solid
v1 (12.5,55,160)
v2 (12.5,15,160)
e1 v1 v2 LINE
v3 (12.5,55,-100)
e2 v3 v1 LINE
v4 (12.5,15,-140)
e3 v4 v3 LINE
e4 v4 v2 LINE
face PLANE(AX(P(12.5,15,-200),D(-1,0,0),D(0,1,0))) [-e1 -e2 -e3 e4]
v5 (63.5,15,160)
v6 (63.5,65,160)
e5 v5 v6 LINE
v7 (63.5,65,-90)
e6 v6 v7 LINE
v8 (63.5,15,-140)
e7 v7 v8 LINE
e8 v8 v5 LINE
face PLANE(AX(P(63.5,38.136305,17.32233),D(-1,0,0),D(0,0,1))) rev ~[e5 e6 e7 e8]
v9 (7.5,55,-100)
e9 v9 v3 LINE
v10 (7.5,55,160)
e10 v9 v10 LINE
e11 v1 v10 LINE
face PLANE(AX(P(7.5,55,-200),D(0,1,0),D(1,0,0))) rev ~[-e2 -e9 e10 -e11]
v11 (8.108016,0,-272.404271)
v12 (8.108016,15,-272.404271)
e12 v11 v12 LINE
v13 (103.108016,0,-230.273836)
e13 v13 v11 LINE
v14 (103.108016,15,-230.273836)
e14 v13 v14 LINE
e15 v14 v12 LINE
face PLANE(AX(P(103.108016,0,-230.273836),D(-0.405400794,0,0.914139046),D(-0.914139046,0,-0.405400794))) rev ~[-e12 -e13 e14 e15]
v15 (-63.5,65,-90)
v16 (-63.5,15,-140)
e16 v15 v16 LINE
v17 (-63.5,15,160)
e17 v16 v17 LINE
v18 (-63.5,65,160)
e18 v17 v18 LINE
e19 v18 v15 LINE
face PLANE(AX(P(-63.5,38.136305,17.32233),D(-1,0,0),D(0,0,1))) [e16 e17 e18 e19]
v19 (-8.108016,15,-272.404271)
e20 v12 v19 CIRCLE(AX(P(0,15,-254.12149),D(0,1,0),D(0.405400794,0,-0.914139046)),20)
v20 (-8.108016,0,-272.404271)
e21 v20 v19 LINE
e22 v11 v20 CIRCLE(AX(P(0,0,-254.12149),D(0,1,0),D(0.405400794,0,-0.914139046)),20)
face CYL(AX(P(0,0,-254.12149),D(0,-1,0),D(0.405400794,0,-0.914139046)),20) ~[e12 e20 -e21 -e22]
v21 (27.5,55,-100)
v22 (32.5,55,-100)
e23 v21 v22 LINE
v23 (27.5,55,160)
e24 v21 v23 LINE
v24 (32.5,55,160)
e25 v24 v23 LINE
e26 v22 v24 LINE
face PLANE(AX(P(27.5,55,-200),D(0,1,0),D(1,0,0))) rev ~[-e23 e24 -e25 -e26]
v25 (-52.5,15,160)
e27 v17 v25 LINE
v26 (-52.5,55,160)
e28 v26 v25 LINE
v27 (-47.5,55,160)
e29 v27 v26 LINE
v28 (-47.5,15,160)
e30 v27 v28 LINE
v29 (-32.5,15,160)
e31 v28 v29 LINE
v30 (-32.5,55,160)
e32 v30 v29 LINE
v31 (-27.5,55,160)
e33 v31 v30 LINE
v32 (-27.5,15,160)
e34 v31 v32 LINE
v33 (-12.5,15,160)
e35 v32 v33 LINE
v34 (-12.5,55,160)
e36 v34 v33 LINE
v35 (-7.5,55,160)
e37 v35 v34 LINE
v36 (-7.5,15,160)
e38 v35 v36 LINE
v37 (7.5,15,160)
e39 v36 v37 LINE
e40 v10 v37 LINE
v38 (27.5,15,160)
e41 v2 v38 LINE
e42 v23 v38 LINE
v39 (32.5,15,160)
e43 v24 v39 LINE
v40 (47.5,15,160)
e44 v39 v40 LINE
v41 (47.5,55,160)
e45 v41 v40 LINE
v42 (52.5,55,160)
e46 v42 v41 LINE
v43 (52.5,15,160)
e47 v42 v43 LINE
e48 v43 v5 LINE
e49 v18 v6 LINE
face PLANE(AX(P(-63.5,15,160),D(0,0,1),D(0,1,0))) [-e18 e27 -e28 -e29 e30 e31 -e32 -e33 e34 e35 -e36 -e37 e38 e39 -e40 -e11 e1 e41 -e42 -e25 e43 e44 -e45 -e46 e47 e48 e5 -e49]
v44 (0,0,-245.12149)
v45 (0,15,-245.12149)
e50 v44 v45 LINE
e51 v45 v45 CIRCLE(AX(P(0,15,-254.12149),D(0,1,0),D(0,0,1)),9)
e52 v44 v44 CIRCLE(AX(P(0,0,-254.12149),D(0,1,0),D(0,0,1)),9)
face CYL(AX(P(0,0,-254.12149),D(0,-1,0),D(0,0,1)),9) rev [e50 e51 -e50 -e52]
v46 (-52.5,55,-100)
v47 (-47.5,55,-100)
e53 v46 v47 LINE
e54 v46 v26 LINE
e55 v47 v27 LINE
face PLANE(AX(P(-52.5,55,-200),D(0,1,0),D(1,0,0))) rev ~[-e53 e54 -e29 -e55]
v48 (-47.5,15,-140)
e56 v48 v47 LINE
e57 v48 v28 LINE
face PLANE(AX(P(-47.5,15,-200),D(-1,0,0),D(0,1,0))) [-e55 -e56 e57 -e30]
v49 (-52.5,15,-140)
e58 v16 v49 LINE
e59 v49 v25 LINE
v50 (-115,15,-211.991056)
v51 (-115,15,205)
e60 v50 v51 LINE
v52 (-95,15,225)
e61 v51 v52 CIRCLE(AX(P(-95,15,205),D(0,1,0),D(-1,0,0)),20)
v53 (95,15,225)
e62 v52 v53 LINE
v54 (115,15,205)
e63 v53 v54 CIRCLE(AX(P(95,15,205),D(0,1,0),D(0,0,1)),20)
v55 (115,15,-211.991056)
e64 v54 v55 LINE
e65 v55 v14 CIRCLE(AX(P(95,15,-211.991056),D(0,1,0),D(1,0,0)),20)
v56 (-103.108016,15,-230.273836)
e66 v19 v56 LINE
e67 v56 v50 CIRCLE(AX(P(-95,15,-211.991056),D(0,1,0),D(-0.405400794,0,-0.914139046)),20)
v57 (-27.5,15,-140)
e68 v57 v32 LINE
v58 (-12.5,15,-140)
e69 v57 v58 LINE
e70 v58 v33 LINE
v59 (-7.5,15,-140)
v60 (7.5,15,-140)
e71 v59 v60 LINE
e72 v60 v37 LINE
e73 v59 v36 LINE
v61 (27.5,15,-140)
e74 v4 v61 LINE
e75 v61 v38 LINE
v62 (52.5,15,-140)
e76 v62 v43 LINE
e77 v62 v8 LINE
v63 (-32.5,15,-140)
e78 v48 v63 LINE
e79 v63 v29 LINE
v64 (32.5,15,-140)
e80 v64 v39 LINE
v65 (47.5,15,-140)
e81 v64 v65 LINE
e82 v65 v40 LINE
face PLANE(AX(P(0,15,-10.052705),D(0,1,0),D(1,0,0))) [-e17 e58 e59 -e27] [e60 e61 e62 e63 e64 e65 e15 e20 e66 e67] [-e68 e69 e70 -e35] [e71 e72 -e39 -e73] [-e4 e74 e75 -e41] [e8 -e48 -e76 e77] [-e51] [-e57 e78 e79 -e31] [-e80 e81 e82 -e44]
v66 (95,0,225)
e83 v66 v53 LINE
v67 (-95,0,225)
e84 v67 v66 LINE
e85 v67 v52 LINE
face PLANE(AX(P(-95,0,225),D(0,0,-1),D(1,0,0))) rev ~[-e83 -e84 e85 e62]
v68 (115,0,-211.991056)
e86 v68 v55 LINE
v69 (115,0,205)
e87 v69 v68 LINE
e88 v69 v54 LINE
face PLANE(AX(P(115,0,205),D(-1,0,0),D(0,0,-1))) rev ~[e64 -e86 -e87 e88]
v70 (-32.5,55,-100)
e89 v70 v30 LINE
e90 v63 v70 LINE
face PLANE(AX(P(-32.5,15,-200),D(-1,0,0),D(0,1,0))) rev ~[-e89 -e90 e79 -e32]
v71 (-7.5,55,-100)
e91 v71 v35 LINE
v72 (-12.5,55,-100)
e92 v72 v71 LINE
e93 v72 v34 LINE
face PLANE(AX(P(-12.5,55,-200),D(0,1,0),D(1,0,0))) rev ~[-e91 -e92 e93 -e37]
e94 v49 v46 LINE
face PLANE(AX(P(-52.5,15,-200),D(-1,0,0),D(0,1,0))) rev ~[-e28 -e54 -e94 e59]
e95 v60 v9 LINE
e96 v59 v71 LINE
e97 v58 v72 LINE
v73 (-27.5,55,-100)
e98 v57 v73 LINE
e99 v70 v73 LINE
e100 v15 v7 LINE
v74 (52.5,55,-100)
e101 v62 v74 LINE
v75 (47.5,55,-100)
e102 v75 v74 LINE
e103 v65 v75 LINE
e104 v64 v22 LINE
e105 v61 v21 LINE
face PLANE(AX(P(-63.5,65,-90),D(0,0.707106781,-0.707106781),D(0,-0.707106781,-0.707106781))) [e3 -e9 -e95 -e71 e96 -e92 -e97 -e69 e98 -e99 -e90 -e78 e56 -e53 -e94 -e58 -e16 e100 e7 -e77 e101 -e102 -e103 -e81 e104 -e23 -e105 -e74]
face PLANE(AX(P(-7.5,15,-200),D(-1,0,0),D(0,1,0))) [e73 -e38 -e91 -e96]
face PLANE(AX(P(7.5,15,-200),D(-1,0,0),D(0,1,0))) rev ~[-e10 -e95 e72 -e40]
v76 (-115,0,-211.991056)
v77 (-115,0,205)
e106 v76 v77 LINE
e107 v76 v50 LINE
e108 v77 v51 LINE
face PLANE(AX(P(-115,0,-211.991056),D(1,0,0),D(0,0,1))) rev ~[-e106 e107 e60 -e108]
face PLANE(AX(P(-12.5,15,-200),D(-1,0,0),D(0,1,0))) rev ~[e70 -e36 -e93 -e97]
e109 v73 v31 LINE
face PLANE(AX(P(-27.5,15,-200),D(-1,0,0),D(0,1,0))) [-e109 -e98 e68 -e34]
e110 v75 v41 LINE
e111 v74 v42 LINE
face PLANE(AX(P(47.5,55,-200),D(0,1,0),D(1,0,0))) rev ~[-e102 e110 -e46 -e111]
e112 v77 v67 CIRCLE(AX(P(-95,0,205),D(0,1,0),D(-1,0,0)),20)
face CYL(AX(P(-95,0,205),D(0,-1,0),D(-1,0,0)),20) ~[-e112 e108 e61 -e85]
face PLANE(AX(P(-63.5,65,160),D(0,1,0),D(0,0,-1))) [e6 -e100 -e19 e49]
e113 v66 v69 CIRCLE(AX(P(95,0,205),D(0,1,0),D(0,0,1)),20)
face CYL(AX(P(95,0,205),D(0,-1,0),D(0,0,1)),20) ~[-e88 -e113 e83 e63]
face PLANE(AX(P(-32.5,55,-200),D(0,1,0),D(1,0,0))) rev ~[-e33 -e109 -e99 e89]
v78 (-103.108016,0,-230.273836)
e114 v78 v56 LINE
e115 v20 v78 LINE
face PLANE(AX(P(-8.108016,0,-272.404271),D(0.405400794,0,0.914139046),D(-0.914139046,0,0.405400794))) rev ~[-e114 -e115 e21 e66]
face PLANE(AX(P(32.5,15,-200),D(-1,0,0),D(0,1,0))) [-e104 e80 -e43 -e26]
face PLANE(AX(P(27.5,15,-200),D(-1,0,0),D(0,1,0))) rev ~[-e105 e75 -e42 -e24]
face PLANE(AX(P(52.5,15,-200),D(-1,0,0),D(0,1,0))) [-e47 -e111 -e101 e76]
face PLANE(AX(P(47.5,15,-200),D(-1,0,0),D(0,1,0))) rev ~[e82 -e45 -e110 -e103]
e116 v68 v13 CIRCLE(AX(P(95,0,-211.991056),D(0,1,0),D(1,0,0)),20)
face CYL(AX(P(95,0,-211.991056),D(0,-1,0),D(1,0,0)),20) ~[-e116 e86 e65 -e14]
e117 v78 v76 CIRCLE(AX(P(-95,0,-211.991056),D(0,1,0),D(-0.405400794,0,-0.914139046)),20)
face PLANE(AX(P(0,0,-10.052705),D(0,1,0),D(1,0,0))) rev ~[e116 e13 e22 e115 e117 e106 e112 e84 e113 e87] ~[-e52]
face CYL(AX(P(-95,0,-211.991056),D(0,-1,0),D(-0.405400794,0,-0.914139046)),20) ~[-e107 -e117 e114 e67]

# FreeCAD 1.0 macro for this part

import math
import FreeCAD as App
import Part
import Sketcher

V = App.Vector
Q = App.Units.Quantity

doc = App.newDocument("Part")
body = doc.addObject("PartDesign::Body", "Body")

# Sketch on XZ plane
sketch1 = body.newObject("Sketcher::SketchObject", "Sketch")
sketch1.AttachmentSupport = (doc.getObject("XZ_Plane"), [""])
sketch1.MapMode = "FlatFace"
sketch1.addGeometry(Part.LineSegment(V(-115, -212, 0), V(-115, 205, 0)), False)
sketch1.addGeometry(Part.ArcOfCircle(Part.Circle(V(-95, 205, 0), V(0, 0, 1), 20), math.radians(90), math.radians(180)), False)
sketch1.addGeometry(Part.LineSegment(V(-95, 225, 0), V(95, 225, 0)), False)
sketch1.addGeometry(Part.ArcOfCircle(Part.Circle(V(95, 205, 0), V(0, 0, 1), 20), math.radians(0), math.radians(90)), False)
sketch1.addGeometry(Part.LineSegment(V(115, 205, 0), V(115, -212, 0)), False)
sketch1.addGeometry(Part.ArcOfCircle(Part.Circle(V(95, -212, 0), V(0, 0, 1), 20), math.radians(-66), math.radians(0)), False)
sketch1.addGeometry(Part.LineSegment(V(103, -230, 0), V(8, -272, 0)), False)
sketch1.addGeometry(Part.ArcOfCircle(Part.Circle(V(0, -254, 0), V(0, 0, 1), 20), math.radians(-114), math.radians(-66)), False)
sketch1.addGeometry(Part.LineSegment(V(-8, -272, 0), V(-103, -230, 0)), False)
sketch1.addGeometry(Part.ArcOfCircle(Part.Circle(V(-95, -212, 0), V(0, 0, 1), 20), math.radians(180), math.radians(246)), False)
sketch1.addGeometry(Part.Circle(V(0, -254, 0), V(0, 0, 1), 9), False)
sketch1.addConstraint(Sketcher.Constraint("Tangent", 0, 2, 1, 2))
sketch1.addConstraint(Sketcher.Constraint("Tangent", 1, 1, 2, 1))
sketch1.addConstraint(Sketcher.Constraint("Tangent", 2, 2, 3, 2))
sketch1.addConstraint(Sketcher.Constraint("Tangent", 3, 1, 4, 1))
sketch1.addConstraint(Sketcher.Constraint("Tangent", 4, 2, 5, 2))
sketch1.addConstraint(Sketcher.Constraint("Tangent", 5, 1, 6, 1))
sketch1.addConstraint(Sketcher.Constraint("Tangent", 6, 2, 7, 2))
sketch1.addConstraint(Sketcher.Constraint("Tangent", 7, 1, 8, 1))
sketch1.addConstraint(Sketcher.Constraint("Tangent", 8, 2, 9, 2))
sketch1.addConstraint(Sketcher.Constraint("Tangent", 9, 1, 0, 1))
sketch1.addConstraint(Sketcher.Constraint("Vertical", 0))
sketch1.addConstraint(Sketcher.Constraint("Horizontal", 2))
sketch1.addConstraint(Sketcher.Constraint("Vertical", 4))
sketch1.addConstraint(Sketcher.Constraint("Coincident", 10, 3, 7, 3))
sketch1.addConstraint(Sketcher.Constraint("Equal", 1, 3))
sketch1.addConstraint(Sketcher.Constraint("Equal", 3, 5))
sketch1.addConstraint(Sketcher.Constraint("Equal", 5, 7))
sketch1.addConstraint(Sketcher.Constraint("Equal", 7, 9))
sketch1.addConstraint(Sketcher.Constraint("Symmetric", 5, 3, 9, 3, -2))
sketch1.addConstraint(Sketcher.Constraint("PointOnObject", 7, 3, -2))
sketch1.addConstraint(Sketcher.Constraint("Diameter", 10, Q("18 mm")))
sketch1.addConstraint(Sketcher.Constraint("Radius", 1, Q("20 mm")))
sketch1.addConstraint(Sketcher.Constraint("DistanceX", 2, 1, 2, 2, Q("190 mm")))
sketch1.addConstraint(Sketcher.Constraint("DistanceY", -1, 1, 1, 3, Q("205 mm")))
sketch1.addConstraint(Sketcher.Constraint("Distance", 6, Q("103.922921 mm")))
sketch1.addConstraint(Sketcher.Constraint("DistanceY", 0, 1, 0, 2, Q("416.991056 mm")))
pad1 = body.newObject("PartDesign::Pad", "Pad")
pad1.Profile = sketch1
pad1.Length = 15
pad1.Reversed = True

# Sketch on YZ plane
sketch2 = body.newObject("Sketcher::SketchObject", "Sketch001")
sketch2.AttachmentSupport = (doc.getObject("YZ_Plane"), [""])
sketch2.MapMode = "FlatFace"
sketch2.addGeometry(Part.LineSegment(V(65, 160, 0), V(15, 160, 0)), False)
sketch2.addGeometry(Part.LineSegment(V(15, 160, 0), V(15, -140, 0)), False)
sketch2.addGeometry(Part.LineSegment(V(15, -140, 0), V(65, -90, 0)), False)
sketch2.addGeometry(Part.LineSegment(V(65, -90, 0), V(65, 160, 0)), False)
sketch2.addConstraint(Sketcher.Constraint("Coincident", 0, 2, 1, 1))
sketch2.addConstraint(Sketcher.Constraint("Coincident", 1, 2, 2, 1))
sketch2.addConstraint(Sketcher.Constraint("Coincident", 2, 2, 3, 1))
sketch2.addConstraint(Sketcher.Constraint("Coincident", 3, 2, 0, 1))
sketch2.addConstraint(Sketcher.Constraint("Horizontal", 0))
sketch2.addConstraint(Sketcher.Constraint("Vertical", 1))
sketch2.addConstraint(Sketcher.Constraint("Vertical", 3))
sketch2.addConstraint(Sketcher.Constraint("DistanceX", 0, 2, 0, 1, Q("50 mm")))
sketch2.addConstraint(Sketcher.Constraint("DistanceY", 1, 2, 1, 1, Q("300 mm")))
sketch2.addConstraint(Sketcher.Constraint("DistanceY", 3, 1, 3, 2, Q("250 mm")))
sketch2.addConstraint(Sketcher.Constraint("DistanceX", -1, 1, 0, 2, Q("15 mm")))
sketch2.addConstraint(Sketcher.Constraint("DistanceY", -1, 1, 0, 2, Q("160 mm")))
pad2 = body.newObject("PartDesign::Pad", "Pad001")
pad2.Profile = sketch2
pad2.Type = "TwoLengths"
pad2.Length = 63.5
pad2.Length2 = 63.5

# Sketch on XY plane
sketch3 = body.newObject("Sketcher::SketchObject", "Sketch002")
sketch3.AttachmentSupport = (doc.getObject("XY_Plane"), [""])
sketch3.MapMode = "FlatFace"
sketch3.addGeometry(Part.LineSegment(V(-52, 55, 0), V(-52, 15, 0)), False)
sketch3.addGeometry(Part.LineSegment(V(-52, 15, 0), V(-48, 15, 0)), False)
sketch3.addGeometry(Part.LineSegment(V(-48, 15, 0), V(-48, 55, 0)), False)
sketch3.addGeometry(Part.LineSegment(V(-48, 55, 0), V(-52, 55, 0)), False)
sketch3.addGeometry(Part.LineSegment(V(48, 55, 0), V(48, 15, 0)), False)
sketch3.addGeometry(Part.LineSegment(V(48, 15, 0), V(52, 15, 0)), False)
sketch3.addGeometry(Part.LineSegment(V(52, 15, 0), V(52, 55, 0)), False)
sketch3.addGeometry(Part.LineSegment(V(52, 55, 0), V(48, 55, 0)), False)
sketch3.addGeometry(Part.LineSegment(V(28, 55, 0), V(28, 15, 0)), False)
sketch3.addGeometry(Part.LineSegment(V(28, 15, 0), V(32, 15, 0)), False)
sketch3.addGeometry(Part.LineSegment(V(32, 15, 0), V(32, 55, 0)), False)
sketch3.addGeometry(Part.LineSegment(V(32, 55, 0), V(28, 55, 0)), False)
sketch3.addGeometry(Part.LineSegment(V(8, 55, 0), V(8, 15, 0)), False)
sketch3.addGeometry(Part.LineSegment(V(8, 15, 0), V(12, 15, 0)), False)
sketch3.addGeometry(Part.LineSegment(V(12, 15, 0), V(12, 55, 0)), False)
sketch3.addGeometry(Part.LineSegment(V(12, 55, 0), V(8, 55, 0)), False)
sketch3.addGeometry(Part.LineSegment(V(-12, 55, 0), V(-12, 15, 0)), False)
sketch3.addGeometry(Part.LineSegment(V(-12, 15, 0), V(-8, 15, 0)), False)
sketch3.addGeometry(Part.LineSegment(V(-8, 15, 0), V(-8, 55, 0)), False)
sketch3.addGeometry(Part.LineSegment(V(-8, 55, 0), V(-12, 55, 0)), False)
sketch3.addGeometry(Part.LineSegment(V(-32, 55, 0), V(-32, 15, 0)), False)
sketch3.addGeometry(Part.LineSegment(V(-32, 15, 0), V(-28, 15, 0)), False)
sketch3.addGeometry(Part.LineSegment(V(-28, 15, 0), V(-28, 55, 0)), False)
sketch3.addGeometry(Part.LineSegment(V(-28, 55, 0), V(-32, 55, 0)), False)
sketch3.addConstraint(Sketcher.Constraint("Coincident", 0, 2, 1, 1))
sketch3.addConstraint(Sketcher.Constraint("Coincident", 1, 2, 2, 1))
sketch3.addConstraint(Sketcher.Constraint("Coincident", 2, 2, 3, 1))
sketch3.addConstraint(Sketcher.Constraint("Coincident", 3, 2, 0, 1))
sketch3.addConstraint(Sketcher.Constraint("Coincident", 4, 2, 5, 1))
sketch3.addConstraint(Sketcher.Constraint("Coincident", 5, 2, 6, 1))
sketch3.addConstraint(Sketcher.Constraint("Coincident", 6, 2, 7, 1))
sketch3.addConstraint(Sketcher.Constraint("Coincident", 7, 2, 4, 1))
sketch3.addConstraint(Sketcher.Constraint("Coincident", 8, 2, 9, 1))
sketch3.addConstraint(Sketcher.Constraint("Coincident", 9, 2, 10, 1))
sketch3.addConstraint(Sketcher.Constraint("Coincident", 10, 2, 11, 1))
sketch3.addConstraint(Sketcher.Constraint("Coincident", 11, 2, 8, 1))
sketch3.addConstraint(Sketcher.Constraint("Coincident", 12, 2, 13, 1))
sketch3.addConstraint(Sketcher.Constraint("Coincident", 13, 2, 14, 1))
sketch3.addConstraint(Sketcher.Constraint("Coincident", 14, 2, 15, 1))
sketch3.addConstraint(Sketcher.Constraint("Coincident", 15, 2, 12, 1))
sketch3.addConstraint(Sketcher.Constraint("Coincident", 16, 2, 17, 1))
sketch3.addConstraint(Sketcher.Constraint("Coincident", 17, 2, 18, 1))
sketch3.addConstraint(Sketcher.Constraint("Coincident", 18, 2, 19, 1))
sketch3.addConstraint(Sketcher.Constraint("Coincident", 19, 2, 16, 1))
sketch3.addConstraint(Sketcher.Constraint("Coincident", 20, 2, 21, 1))
sketch3.addConstraint(Sketcher.Constraint("Coincident", 21, 2, 22, 1))
sketch3.addConstraint(Sketcher.Constraint("Coincident", 22, 2, 23, 1))
sketch3.addConstraint(Sketcher.Constraint("Coincident", 23, 2, 20, 1))
sketch3.addConstraint(Sketcher.Constraint("Vertical", 0))
sketch3.addConstraint(Sketcher.Constraint("Horizontal", 1))
sketch3.addConstraint(Sketcher.Constraint("Vertical", 2))
sketch3.addConstraint(Sketcher.Constraint("Horizontal", 3))
sketch3.addConstraint(Sketcher.Constraint("Vertical", 4))
sketch3.addConstraint(Sketcher.Constraint("Horizontal", 5))
sketch3.addConstraint(Sketcher.Constraint("Vertical", 6))
sketch3.addConstraint(Sketcher.Constraint("Horizontal", 7))
sketch3.addConstraint(Sketcher.Constraint("Vertical", 8))
sketch3.addConstraint(Sketcher.Constraint("Horizontal", 9))
sketch3.addConstraint(Sketcher.Constraint("Vertical", 10))
sketch3.addConstraint(Sketcher.Constraint("Horizontal", 11))
sketch3.addConstraint(Sketcher.Constraint("Vertical", 12))
sketch3.addConstraint(Sketcher.Constraint("Horizontal", 13))
sketch3.addConstraint(Sketcher.Constraint("Vertical", 14))
sketch3.addConstraint(Sketcher.Constraint("Horizontal", 15))
sketch3.addConstraint(Sketcher.Constraint("Vertical", 16))
sketch3.addConstraint(Sketcher.Constraint("Horizontal", 17))
sketch3.addConstraint(Sketcher.Constraint("Vertical", 18))
sketch3.addConstraint(Sketcher.Constraint("Horizontal", 19))
sketch3.addConstraint(Sketcher.Constraint("Vertical", 20))
sketch3.addConstraint(Sketcher.Constraint("Horizontal", 21))
sketch3.addConstraint(Sketcher.Constraint("Vertical", 22))
sketch3.addConstraint(Sketcher.Constraint("Horizontal", 23))
sketch3.addConstraint(Sketcher.Constraint("Symmetric", 1, 2, 4, 2, -2))
sketch3.addConstraint(Sketcher.Constraint("Symmetric", 3, 2, 6, 2, -2))
sketch3.addConstraint(Sketcher.Constraint("Symmetric", 13, 2, 16, 2, -2))
sketch3.addConstraint(Sketcher.Constraint("Symmetric", 15, 2, 18, 2, -2))
sketch3.addConstraint(Sketcher.Constraint("Symmetric", 9, 2, 20, 2, -2))
sketch3.addConstraint(Sketcher.Constraint("Symmetric", 11, 2, 22, 2, -2))
sketch3.addConstraint(Sketcher.Constraint("Horizontal", 5, 2, 8, 2))
sketch3.addConstraint(Sketcher.Constraint("Horizontal", 7, 2, 10, 2))
sketch3.addConstraint(Sketcher.Constraint("Horizontal", 9, 2, 12, 2))
sketch3.addConstraint(Sketcher.Constraint("Horizontal", 11, 2, 14, 2))
sketch3.addConstraint(Sketcher.Constraint("Equal", 7, 9))
sketch3.addConstraint(Sketcher.Constraint("Equal", 11, 13))
sketch3.addConstraint(Sketcher.Constraint("DistanceX", 1, 1, 1, 2, Q("5 mm")))
sketch3.addConstraint(Sketcher.Constraint("DistanceY", 0, 2, 0, 1, Q("40 mm")))
sketch3.addConstraint(Sketcher.Constraint("DistanceY", -1, 1, 0, 2, Q("15 mm")))
sketch3.addConstraint(Sketcher.Constraint("DistanceX", 1, 2, 4, 2, Q("95 mm")))
sketch3.addConstraint(Sketcher.Constraint("DistanceX", 8, 2, 4, 2, Q("20 mm")))
sketch3.addConstraint(Sketcher.Constraint("DistanceX", 12, 2, 8, 2, Q("20 mm")))
pocket1 = body.newObject("PartDesign::Pocket", "Pocket")
pocket1.Profile = sketch3
pocket1.Type = "ThroughAll"
pocket1.Midplane = True

doc.recompute()
